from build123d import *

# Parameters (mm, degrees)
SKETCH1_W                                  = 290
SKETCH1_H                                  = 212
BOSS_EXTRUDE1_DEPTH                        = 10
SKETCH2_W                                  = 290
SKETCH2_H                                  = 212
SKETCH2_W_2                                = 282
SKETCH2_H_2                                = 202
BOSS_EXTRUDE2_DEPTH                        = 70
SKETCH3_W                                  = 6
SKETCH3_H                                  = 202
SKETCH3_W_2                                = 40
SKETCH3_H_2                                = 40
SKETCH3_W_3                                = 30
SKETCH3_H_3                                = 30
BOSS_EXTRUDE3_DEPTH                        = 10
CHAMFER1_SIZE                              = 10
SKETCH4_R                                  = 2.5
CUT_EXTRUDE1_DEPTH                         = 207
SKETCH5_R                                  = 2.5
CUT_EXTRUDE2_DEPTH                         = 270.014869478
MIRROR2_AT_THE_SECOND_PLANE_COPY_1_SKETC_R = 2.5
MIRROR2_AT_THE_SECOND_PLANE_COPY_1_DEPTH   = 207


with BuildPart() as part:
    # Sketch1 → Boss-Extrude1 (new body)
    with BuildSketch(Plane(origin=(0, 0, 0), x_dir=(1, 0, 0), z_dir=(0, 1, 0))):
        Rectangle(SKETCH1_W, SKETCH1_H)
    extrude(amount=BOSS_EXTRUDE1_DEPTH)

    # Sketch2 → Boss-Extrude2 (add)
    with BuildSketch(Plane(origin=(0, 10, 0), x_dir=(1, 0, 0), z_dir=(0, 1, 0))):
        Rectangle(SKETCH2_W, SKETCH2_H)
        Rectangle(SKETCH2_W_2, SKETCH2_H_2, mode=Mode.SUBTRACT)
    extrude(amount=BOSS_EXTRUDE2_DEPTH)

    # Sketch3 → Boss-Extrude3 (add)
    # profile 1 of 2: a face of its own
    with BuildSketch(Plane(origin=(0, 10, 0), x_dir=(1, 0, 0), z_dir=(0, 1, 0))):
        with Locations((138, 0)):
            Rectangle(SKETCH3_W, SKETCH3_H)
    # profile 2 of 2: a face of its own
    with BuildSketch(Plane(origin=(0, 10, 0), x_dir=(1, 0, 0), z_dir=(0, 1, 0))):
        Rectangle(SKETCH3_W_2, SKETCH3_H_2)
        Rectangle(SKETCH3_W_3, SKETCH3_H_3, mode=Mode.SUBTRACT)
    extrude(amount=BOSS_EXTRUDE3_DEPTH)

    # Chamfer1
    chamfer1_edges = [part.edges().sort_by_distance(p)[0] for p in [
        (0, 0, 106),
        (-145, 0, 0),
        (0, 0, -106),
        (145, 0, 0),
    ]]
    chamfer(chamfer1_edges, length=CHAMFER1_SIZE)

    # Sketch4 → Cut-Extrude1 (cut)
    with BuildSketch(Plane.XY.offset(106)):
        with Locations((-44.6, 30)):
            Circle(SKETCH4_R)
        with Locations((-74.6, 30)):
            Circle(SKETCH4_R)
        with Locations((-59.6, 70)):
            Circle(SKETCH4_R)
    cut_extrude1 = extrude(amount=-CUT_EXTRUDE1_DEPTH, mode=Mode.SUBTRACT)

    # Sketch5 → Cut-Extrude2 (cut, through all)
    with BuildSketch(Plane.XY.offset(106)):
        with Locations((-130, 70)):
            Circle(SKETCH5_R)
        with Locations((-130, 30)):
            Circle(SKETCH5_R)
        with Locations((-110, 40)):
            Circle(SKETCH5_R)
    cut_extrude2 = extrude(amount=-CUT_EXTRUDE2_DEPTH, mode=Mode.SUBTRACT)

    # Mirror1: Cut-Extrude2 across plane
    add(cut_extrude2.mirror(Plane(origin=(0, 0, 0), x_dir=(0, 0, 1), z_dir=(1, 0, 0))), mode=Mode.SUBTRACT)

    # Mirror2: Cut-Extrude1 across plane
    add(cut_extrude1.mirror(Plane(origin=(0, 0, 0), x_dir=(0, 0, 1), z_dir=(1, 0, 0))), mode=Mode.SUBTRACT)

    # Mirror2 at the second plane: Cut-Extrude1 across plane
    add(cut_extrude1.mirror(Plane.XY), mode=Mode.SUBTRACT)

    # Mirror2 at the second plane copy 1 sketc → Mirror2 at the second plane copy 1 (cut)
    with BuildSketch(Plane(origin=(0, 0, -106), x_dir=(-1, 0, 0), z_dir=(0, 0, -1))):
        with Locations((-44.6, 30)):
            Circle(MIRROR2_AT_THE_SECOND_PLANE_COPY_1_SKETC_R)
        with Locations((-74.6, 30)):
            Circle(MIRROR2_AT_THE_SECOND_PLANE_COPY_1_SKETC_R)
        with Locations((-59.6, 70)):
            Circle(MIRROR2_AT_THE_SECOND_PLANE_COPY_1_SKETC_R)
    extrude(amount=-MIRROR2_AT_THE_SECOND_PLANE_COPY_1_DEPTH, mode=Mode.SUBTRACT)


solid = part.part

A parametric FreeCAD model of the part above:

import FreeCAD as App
import Part
import Sketcher
from FreeCAD import Vector
Q = App.Units.Quantity


def edges_at(feature, points):
    """Names of the edges that pass closest to the given points."""
    edges = feature.Shape.Edges
    near = lambda p: min(range(len(edges)), key=lambda i: edges[i].distToShape(Part.Vertex(*p))[0])
    return sorted({f"Edge{near(p) + 1}" for p in points})

doc = App.newDocument("Part")
params = doc.addObject("Spreadsheet::Sheet", "Params")
for row, (alias, value) in enumerate([
    ("sketch1_width", "290 mm"),
    ("sketch1_height", "212 mm"),
    ("pad1_length", "10 mm"),
    ("sketch2_width", "290 mm"),
    ("sketch2_width2", "282 mm"),
    ("sketch2_height", "212 mm"),
    ("sketch2_height2", "202 mm"),
    ("pad2_length", "70 mm"),
    ("sketch3_width", "6 mm"),
    ("sketch3_width2", "40 mm"),
    ("sketch3_width3", "30 mm"),
    ("sketch3_height", "202 mm"),
    ("pad3_length", "10 mm"),
    ("chamfer_size", "10 mm"),
    ("sketch4_diameter", "5 mm"),
    ("pocket1_length", "207 mm"),
    ("sketch5_diameter", "5 mm"),
    ("sketch6_diameter", "5 mm"),
    ("pocket3_length", "207 mm"),
], start=1):
    params.set(f"A{row}", alias)
    params.set(f"B{row}", "=" + value)
    params.setAlias(f"B{row}", alias)

body = doc.addObject("PartDesign::Body", "Body")

# Sketch on XZ plane
sketch1 = body.newObject("Sketcher::SketchObject", "Sketch")
sketch1.AttachmentSupport = (doc.getObject("XZ_Plane"), [""])
sketch1.MapMode = "FlatFace"
sketch1.addGeometry(Part.LineSegment(Vector(-145, -106, 0), Vector(-145, 106, 0)), False)
sketch1.addGeometry(Part.LineSegment(Vector(-145, 106, 0), Vector(145, 106, 0)), False)
sketch1.addGeometry(Part.LineSegment(Vector(145, 106, 0), Vector(145, -106, 0)), False)
sketch1.addGeometry(Part.LineSegment(Vector(145, -106, 0), Vector(-145, -106, 0)), False)
sketch1.addConstraint(Sketcher.Constraint("Coincident", 0, 2, 1, 1))
sketch1.addConstraint(Sketcher.Constraint("Coincident", 1, 2, 2, 1))
sketch1.addConstraint(Sketcher.Constraint("Coincident", 2, 2, 3, 1))
sketch1.addConstraint(Sketcher.Constraint("Coincident", 3, 2, 0, 1))
sketch1.addConstraint(Sketcher.Constraint("Vertical", 0))
sketch1.addConstraint(Sketcher.Constraint("Horizontal", 1))
sketch1.addConstraint(Sketcher.Constraint("Vertical", 2))
sketch1.addConstraint(Sketcher.Constraint("Horizontal", 3))
sketch1.addConstraint(Sketcher.Constraint("Symmetric", 0, 2, 2, 2, -1, 1))
sketch1.addConstraint(Sketcher.Constraint("DistanceX", 1, 1, 1, 2, Q("290 mm")))
sketch1.addConstraint(Sketcher.Constraint("DistanceY", 0, 1, 0, 2, Q("212 mm")))
sketch1.setExpression("Constraints[9]", "Params.sketch1_width")
sketch1.setExpression("Constraints[10]", "Params.sketch1_height")
pad1 = body.newObject("PartDesign::Pad", "Pad")
pad1.Profile = sketch1
pad1.setExpression("Length", "Params.pad1_length")
pad1.Reversed = True

# Sketch on XZ plane
sketch2 = body.newObject("Sketcher::SketchObject", "Sketch001")
sketch2.AttachmentSupport = (doc.getObject("XZ_Plane"), [""])
sketch2.MapMode = "FlatFace"
sketch2.AttachmentOffset = App.Placement(Vector(0, 0, -10), App.Rotation())
sketch2.addGeometry(Part.LineSegment(Vector(-145, -106, 0), Vector(-145, 106, 0)), False)
sketch2.addGeometry(Part.LineSegment(Vector(-145, 106, 0), Vector(145, 106, 0)), False)
sketch2.addGeometry(Part.LineSegment(Vector(145, 106, 0), Vector(145, -106, 0)), False)
sketch2.addGeometry(Part.LineSegment(Vector(145, -106, 0), Vector(-145, -106, 0)), False)
sketch2.addGeometry(Part.LineSegment(Vector(141, 101, 0), Vector(-141, 101, 0)), False)
sketch2.addGeometry(Part.LineSegment(Vector(-141, 101, 0), Vector(-141, -101, 0)), False)
sketch2.addGeometry(Part.LineSegment(Vector(-141, -101, 0), Vector(141, -101, 0)), False)
sketch2.addGeometry(Part.LineSegment(Vector(141, -101, 0), Vector(141, 101, 0)), False)
sketch2.addConstraint(Sketcher.Constraint("Coincident", 0, 2, 1, 1))
sketch2.addConstraint(Sketcher.Constraint("Coincident", 1, 2, 2, 1))
sketch2.addConstraint(Sketcher.Constraint("Coincident", 2, 2, 3, 1))
sketch2.addConstraint(Sketcher.Constraint("Coincident", 3, 2, 0, 1))
sketch2.addConstraint(Sketcher.Constraint("Coincident", 4, 2, 5, 1))
sketch2.addConstraint(Sketcher.Constraint("Coincident", 5, 2, 6, 1))
sketch2.addConstraint(Sketcher.Constraint("Coincident", 6, 2, 7, 1))
sketch2.addConstraint(Sketcher.Constraint("Coincident", 7, 2, 4, 1))
sketch2.addConstraint(Sketcher.Constraint("Vertical", 0))
sketch2.addConstraint(Sketcher.Constraint("Horizontal", 1))
sketch2.addConstraint(Sketcher.Constraint("Vertical", 2))
sketch2.addConstraint(Sketcher.Constraint("Horizontal", 3))
sketch2.addConstraint(Sketcher.Constraint("Horizontal", 4))
sketch2.addConstraint(Sketcher.Constraint("Vertical", 5))
sketch2.addConstraint(Sketcher.Constraint("Horizontal", 6))
sketch2.addConstraint(Sketcher.Constraint("Vertical", 7))
sketch2.addConstraint(Sketcher.Constraint("Symmetric", 0, 2, 2, 2, -1, 1))
sketch2.addConstraint(Sketcher.Constraint("Symmetric", 4, 2, 6, 2, -1, 1))
sketch2.addConstraint(Sketcher.Constraint("DistanceX", 1, 1, 1, 2, Q("290 mm")))
sketch2.addConstraint(Sketcher.Constraint("DistanceX", 4, 2, 4, 1, Q("282 mm")))
sketch2.addConstraint(Sketcher.Constraint("DistanceY", 0, 1, 0, 2, Q("212 mm")))
sketch2.addConstraint(Sketcher.Constraint("DistanceY", 5, 2, 5, 1, Q("202 mm")))
sketch2.setExpression("Constraints[18]", "Params.sketch2_width")
sketch2.setExpression("Constraints[19]", "Params.sketch2_width2")
sketch2.setExpression("Constraints[20]", "Params.sketch2_height")
sketch2.setExpression("Constraints[21]", "Params.sketch2_height2")
pad2 = body.newObject("PartDesign::Pad", "Pad001")
pad2.Profile = sketch2
pad2.setExpression("Length", "Params.pad2_length")
pad2.Reversed = True

# Sketch on XZ plane
sketch3 = body.newObject("Sketcher::SketchObject", "Sketch002")
sketch3.AttachmentSupport = (doc.getObject("XZ_Plane"), [""])
sketch3.MapMode = "FlatFace"
sketch3.AttachmentOffset = App.Placement(Vector(0, 0, -10), App.Rotation())
sketch3.addGeometry(Part.LineSegment(Vector(135, -101, 0), Vector(135, 101, 0)), False)
sketch3.addGeometry(Part.LineSegment(Vector(135, 101, 0), Vector(141, 101, 0)), False)
sketch3.addGeometry(Part.LineSegment(Vector(141, 101, 0), Vector(141, -101, 0)), False)
sketch3.addGeometry(Part.LineSegment(Vector(141, -101, 0), Vector(135, -101, 0)), False)
sketch3.addGeometry(Part.LineSegment(Vector(-20, -20, 0), Vector(-20, 20, 0)), False)
sketch3.addGeometry(Part.LineSegment(Vector(-20, 20, 0), Vector(20, 20, 0)), False)
sketch3.addGeometry(Part.LineSegment(Vector(20, 20, 0), Vector(20, -20, 0)), False)
sketch3.addGeometry(Part.LineSegment(Vector(20, -20, 0), Vector(-20, -20, 0)), False)
sketch3.addGeometry(Part.LineSegment(Vector(15, 15, 0), Vector(-15, 15, 0)), False)
sketch3.addGeometry(Part.LineSegment(Vector(-15, 15, 0), Vector(-15, -15, 0)), False)
sketch3.addGeometry(Part.LineSegment(Vector(-15, -15, 0), Vector(15, -15, 0)), False)
sketch3.addGeometry(Part.LineSegment(Vector(15, -15, 0), Vector(15, 15, 0)), False)
sketch3.addConstraint(Sketcher.Constraint("Coincident", 0, 2, 1, 1))
sketch3.addConstraint(Sketcher.Constraint("Coincident", 1, 2, 2, 1))
sketch3.addConstraint(Sketcher.Constraint("Coincident", 2, 2, 3, 1))
sketch3.addConstraint(Sketcher.Constraint("Coincident", 3, 2, 0, 1))
sketch3.addConstraint(Sketcher.Constraint("Coincident", 4, 2, 5, 1))
sketch3.addConstraint(Sketcher.Constraint("Coincident", 5, 2, 6, 1))
sketch3.addConstraint(Sketcher.Constraint("Coincident", 6, 2, 7, 1))
sketch3.addConstraint(Sketcher.Constraint("Coincident", 7, 2, 4, 1))
sketch3.addConstraint(Sketcher.Constraint("Coincident", 8, 2, 9, 1))
sketch3.addConstraint(Sketcher.Constraint("Coincident", 9, 2, 10, 1))
sketch3.addConstraint(Sketcher.Constraint("Coincident", 10, 2, 11, 1))
sketch3.addConstraint(Sketcher.Constraint("Coincident", 11, 2, 8, 1))
sketch3.addConstraint(Sketcher.Constraint("Vertical", 0))
sketch3.addConstraint(Sketcher.Constraint("Horizontal", 1))
sketch3.addConstraint(Sketcher.Constraint("Vertical", 2))
sketch3.addConstraint(Sketcher.Constraint("Horizontal", 3))
sketch3.addConstraint(Sketcher.Constraint("Vertical", 4))
sketch3.addConstraint(Sketcher.Constraint("Horizontal", 5))
sketch3.addConstraint(Sketcher.Constraint("Vertical", 6))
sketch3.addConstraint(Sketcher.Constraint("Horizontal", 7))
sketch3.addConstraint(Sketcher.Constraint("Horizontal", 8))
sketch3.addConstraint(Sketcher.Constraint("Vertical", 9))
sketch3.addConstraint(Sketcher.Constraint("Horizontal", 10))
sketch3.addConstraint(Sketcher.Constraint("Vertical", 11))
sketch3.addConstraint(Sketcher.Constraint("Symmetric", 4, 2, 6, 2, -1, 1))
sketch3.addConstraint(Sketcher.Constraint("Symmetric", 8, 2, 10, 2, -1, 1))
sketch3.addConstraint(Sketcher.Constraint("Equal", 7, 4))
sketch3.addConstraint(Sketcher.Constraint("Equal", 10, 9))
sketch3.addConstraint(Sketcher.Constraint("DistanceX", 1, 1, 1, 2, Q("6 mm")))
sketch3.addConstraint(Sketcher.Constraint("DistanceX", 5, 1, 5, 2, Q("40 mm")))
sketch3.addConstraint(Sketcher.Constraint("DistanceX", 8, 2, 8, 1, Q("30 mm")))
sketch3.addConstraint(Sketcher.Constraint("DistanceY", 0, 1, 0, 2, Q("202 mm")))
sketch3.addConstraint(Sketcher.Constraint("DistanceX", -1, 1, 0, 2, Q("135 mm")))
sketch3.addConstraint(Sketcher.Constraint("DistanceY", -1, 1, 0, 2, Q("101 mm")))
sketch3.setExpression("Constraints[28]", "Params.sketch3_width")
sketch3.setExpression("Constraints[29]", "Params.sketch3_width2")
sketch3.setExpression("Constraints[30]", "Params.sketch3_width3")
sketch3.setExpression("Constraints[31]", "Params.sketch3_height")
pad3 = body.newObject("PartDesign::Pad", "Pad002")
pad3.Profile = sketch3
pad3.setExpression("Length", "Params.pad3_length")
pad3.Reversed = True
doc.recompute()

chamfer = body.newObject("PartDesign::Chamfer", "Chamfer")
chamfer.Base = (pad3, edges_at(pad3, [
    (0, 0, 106),
    (-145, 0, 0),
    (0, 0, -106),
    (145, 0, 0),
]))
chamfer.setExpression("Size", "Params.chamfer_size")

# Sketch on XY plane
sketch4 = body.newObject("Sketcher::SketchObject", "Sketch003")
sketch4.AttachmentSupport = (doc.getObject("XY_Plane"), [""])
sketch4.MapMode = "FlatFace"
sketch4.AttachmentOffset = App.Placement(Vector(0, 0, 106), App.Rotation())
sketch4.addGeometry(Part.Circle(Vector(-44.6, 30, 0), Vector(0, 0, 1), 2.5), False)
sketch4.addGeometry(Part.Circle(Vector(-74.6, 30, 0), Vector(0, 0, 1), 2.5), False)
sketch4.addGeometry(Part.Circle(Vector(-59.6, 70, 0), Vector(0, 0, 1), 2.5), False)
sketch4.addConstraint(Sketcher.Constraint("Equal", 0, 1))
sketch4.addConstraint(Sketcher.Constraint("Equal", 1, 2))
sketch4.addConstraint(Sketcher.Constraint("Horizontal", 0, 3, 1, 3))
sketch4.addConstraint(Sketcher.Constraint("Diameter", 0, Q("5 mm")))
sketch4.addConstraint(Sketcher.Constraint("DistanceY", -1, 1, 0, 3, Q("30 mm")))
sketch4.addConstraint(Sketcher.Constraint("DistanceY", -1, 1, 2, 3, Q("70 mm")))
sketch4.addConstraint(Sketcher.Constraint("DistanceX", 1, 3, 0, 3, Q("30 mm")))
sketch4.addConstraint(Sketcher.Constraint("DistanceX", 2, 3, 0, 3, Q("15 mm")))
sketch4.addConstraint(Sketcher.Constraint("DistanceX", 0, 3, -1, 1, Q("44.6 mm")))
sketch4.setExpression("Constraints[3]", "Params.sketch4_diameter")
pocket1 = body.newObject("PartDesign::Pocket", "Pocket")
pocket1.Profile = sketch4
pocket1.setExpression("Length", "Params.pocket1_length")

# Sketch on XY plane
sketch5 = body.newObject("Sketcher::SketchObject", "Sketch004")
sketch5.AttachmentSupport = (doc.getObject("XY_Plane"), [""])
sketch5.MapMode = "FlatFace"
sketch5.AttachmentOffset = App.Placement(Vector(0, 0, 106), App.Rotation())
sketch5.addGeometry(Part.Circle(Vector(-130, 70, 0), Vector(0, 0, 1), 2.5), False)
sketch5.addGeometry(Part.Circle(Vector(-130, 30, 0), Vector(0, 0, 1), 2.5), False)
sketch5.addGeometry(Part.Circle(Vector(-110, 40, 0), Vector(0, 0, 1), 2.5), False)
sketch5.addConstraint(Sketcher.Constraint("Equal", 0, 1))
sketch5.addConstraint(Sketcher.Constraint("Equal", 1, 2))
sketch5.addConstraint(Sketcher.Constraint("Vertical", 0, 3, 1, 3))
sketch5.addConstraint(Sketcher.Constraint("Diameter", 0, Q("5 mm")))
sketch5.addConstraint(Sketcher.Constraint("DistanceX", 0, 3, -1, 1, Q("130 mm")))
sketch5.addConstraint(Sketcher.Constraint("DistanceY", -1, 1, 0, 3, Q("70 mm")))
sketch5.addConstraint(Sketcher.Constraint("DistanceY", -1, 1, 1, 3, Q("30 mm")))
sketch5.addConstraint(Sketcher.Constraint("DistanceX", 2, 3, -1, 1, Q("110 mm")))
sketch5.addConstraint(Sketcher.Constraint("DistanceY", -1, 1, 2, 3, Q("40 mm")))
sketch5.setExpression("Constraints[3]", "Params.sketch5_diameter")
pocket2 = body.newObject("PartDesign::Pocket", "Pocket001")
pocket2.Profile = sketch5
pocket2.Type = "ThroughAll"
doc.recompute()

mirrored = body.newObject("PartDesign::Mirrored", "Mirrored")
mirrored.Originals = [pocket2]
mirrored.MirrorPlane = (doc.getObject("YZ_Plane"), [""])
body.Tip = mirrored
doc.recompute()

mirrored2 = body.newObject("PartDesign::Mirrored", "Mirrored001")
mirrored2.Originals = [pocket1]
mirrored2.MirrorPlane = (doc.getObject("YZ_Plane"), [""])
body.Tip = mirrored2
doc.recompute()

mirrored3 = body.newObject("PartDesign::Mirrored", "Mirrored002")
mirrored3.Originals = [pocket1]
mirrored3.MirrorPlane = (doc.getObject("XY_Plane"), [""])
body.Tip = mirrored3

# Sketch on XY plane
sketch6 = body.newObject("Sketcher::SketchObject", "Sketch005")
sketch6.AttachmentSupport = (doc.getObject("XY_Plane"), [""])
sketch6.MapMode = "FlatFace"
sketch6.AttachmentOffset = App.Placement(Vector(0, 0, -106), App.Rotation())
sketch6.addGeometry(Part.Circle(Vector(44.6, 30, 0), Vector(0, 0, 1), 2.5), False)
sketch6.addGeometry(Part.Circle(Vector(74.6, 30, 0), Vector(0, 0, 1), 2.5), False)
sketch6.addGeometry(Part.Circle(Vector(59.6, 70, 0), Vector(0, 0, 1), 2.5), False)
sketch6.addConstraint(Sketcher.Constraint("Equal", 0, 1))
sketch6.addConstraint(Sketcher.Constraint("Equal", 1, 2))
sketch6.addConstraint(Sketcher.Constraint("Horizontal", 0, 3, 1, 3))
sketch6.addConstraint(Sketcher.Constraint("Diameter", 0, Q("5 mm")))
sketch6.addConstraint(Sketcher.Constraint("DistanceY", -1, 1, 0, 3, Q("30 mm")))
sketch6.addConstraint(Sketcher.Constraint("DistanceY", -1, 1, 2, 3, Q("70 mm")))
sketch6.addConstraint(Sketcher.Constraint("DistanceX", 0, 3, 1, 3, Q("30 mm")))
sketch6.addConstraint(Sketcher.Constraint("DistanceX", 0, 3, 2, 3, Q("15 mm")))
sketch6.addConstraint(Sketcher.Constraint("DistanceX", -1, 1, 0, 3, Q("44.6 mm")))
sketch6.setExpression("Constraints[3]", "Params.sketch6_diameter")
pocket3 = body.newObject("PartDesign::Pocket", "Pocket002")
pocket3.Profile = sketch6
pocket3.setExpression("Length", "Params.pocket3_length")
pocket3.Reversed = True

doc.recompute()
